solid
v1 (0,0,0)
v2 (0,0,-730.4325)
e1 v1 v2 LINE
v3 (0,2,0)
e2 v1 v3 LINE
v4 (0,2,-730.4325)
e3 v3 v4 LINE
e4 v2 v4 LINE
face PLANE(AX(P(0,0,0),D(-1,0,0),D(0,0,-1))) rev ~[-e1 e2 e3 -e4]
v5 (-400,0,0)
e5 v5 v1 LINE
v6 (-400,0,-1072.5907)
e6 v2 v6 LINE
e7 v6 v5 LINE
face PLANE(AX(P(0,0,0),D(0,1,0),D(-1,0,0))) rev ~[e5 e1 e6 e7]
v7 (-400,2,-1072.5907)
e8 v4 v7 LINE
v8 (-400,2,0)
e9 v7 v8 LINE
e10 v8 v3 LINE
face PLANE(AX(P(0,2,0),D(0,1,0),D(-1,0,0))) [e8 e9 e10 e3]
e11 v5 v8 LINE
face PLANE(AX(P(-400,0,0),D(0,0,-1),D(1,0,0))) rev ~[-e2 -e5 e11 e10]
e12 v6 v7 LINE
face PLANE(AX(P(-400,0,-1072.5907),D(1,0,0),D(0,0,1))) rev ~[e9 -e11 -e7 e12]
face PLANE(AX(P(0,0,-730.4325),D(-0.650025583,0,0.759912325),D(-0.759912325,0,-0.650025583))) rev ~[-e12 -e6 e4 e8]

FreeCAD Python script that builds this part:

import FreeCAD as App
import Part
import Sketcher
from FreeCAD import Vector

doc = App.newDocument("Part")
body = doc.addObject("PartDesign::Body", "Body")

# Sketch on XZ plane
sketch1 = body.newObject("Sketcher::SketchObject", "Sketch")
sketch1.AttachmentSupport = (doc.getObject("XZ_Plane"), [""])
sketch1.MapMode = "FlatFace"
sketch1.addGeometry(Part.LineSegment(Vector(-400, 0, 0), Vector(0, 0, 0)), False)
sketch1.addGeometry(Part.LineSegment(Vector(0, 0, 0), Vector(0, -730.4325, 0)), False)
sketch1.addGeometry(Part.LineSegment(Vector(0, -730.4325, 0), Vector(-400, -1072.5907, 0)), False)
sketch1.addGeometry(Part.LineSegment(Vector(-400, -1072.5907, 0), Vector(-400, 0, 0)), False)
sketch1.addConstraint(Sketcher.Constraint("Coincident", 0, 2, 1, 1))
sketch1.addConstraint(Sketcher.Constraint("Coincident", 1, 2, 2, 1))
sketch1.addConstraint(Sketcher.Constraint("Coincident", 2, 2, 3, 1))
sketch1.addConstraint(Sketcher.Constraint("Coincident", 3, 2, 0, 1))
sketch1.addConstraint(Sketcher.Constraint("Horizontal", 0))
sketch1.addConstraint(Sketcher.Constraint("Vertical", 1))
sketch1.addConstraint(Sketcher.Constraint("Vertical", 3))
sketch1.addConstraint(Sketcher.Constraint("Coincident", 0, 2, -1, 1))
sketch1.addConstraint(Sketcher.Constraint("DistanceX", 0, 1, 0, 2, 400.0))
sketch1.addConstraint(Sketcher.Constraint("DistanceY", 1, 2, 1, 1, 730.4325))
sketch1.addConstraint(Sketcher.Constraint("DistanceY", 3, 1, 3, 2, 1072.5907))
pad1 = body.newObject("PartDesign::Pad", "Pad")
pad1.Profile = sketch1
pad1.Length = 2
pad1.Reversed = True

doc.recompute()
